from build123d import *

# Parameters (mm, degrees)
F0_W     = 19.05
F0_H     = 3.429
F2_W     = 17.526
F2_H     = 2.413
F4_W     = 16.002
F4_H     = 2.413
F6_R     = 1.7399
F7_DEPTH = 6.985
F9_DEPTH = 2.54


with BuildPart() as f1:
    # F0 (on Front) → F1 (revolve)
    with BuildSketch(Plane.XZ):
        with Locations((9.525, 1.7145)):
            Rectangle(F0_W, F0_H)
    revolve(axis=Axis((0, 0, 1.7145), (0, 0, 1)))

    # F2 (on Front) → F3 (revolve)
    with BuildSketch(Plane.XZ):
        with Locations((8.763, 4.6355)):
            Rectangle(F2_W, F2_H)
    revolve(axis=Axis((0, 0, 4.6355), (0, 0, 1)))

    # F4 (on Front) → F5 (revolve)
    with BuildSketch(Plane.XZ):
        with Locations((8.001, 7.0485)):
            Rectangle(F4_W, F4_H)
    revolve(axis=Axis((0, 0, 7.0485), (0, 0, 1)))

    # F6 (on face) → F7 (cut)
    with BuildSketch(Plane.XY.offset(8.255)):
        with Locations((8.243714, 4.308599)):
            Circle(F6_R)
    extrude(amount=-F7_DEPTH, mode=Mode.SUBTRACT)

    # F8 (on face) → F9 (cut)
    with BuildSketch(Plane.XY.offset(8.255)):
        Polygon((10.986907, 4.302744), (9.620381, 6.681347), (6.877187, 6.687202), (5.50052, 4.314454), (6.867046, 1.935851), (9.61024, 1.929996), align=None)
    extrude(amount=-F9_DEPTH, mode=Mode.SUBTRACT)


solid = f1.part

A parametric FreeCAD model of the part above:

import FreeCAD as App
import Part
import Sketcher
Q = App.Units.Quantity


def add_polygon(sketch, points):
    """Adds a closed chain of lines whose ends are joined by coincident constraints."""
    first, n = sketch.GeometryCount, len(points)
    for a, b in zip(points, points[1:] + points[:1]):
        sketch.addGeometry(Part.LineSegment(App.Vector(*a, 0), App.Vector(*b, 0)), False)
    for i in range(n):
        sketch.addConstraint(Sketcher.Constraint("Coincident", first + i, 2, first + (i + 1) % n, 1))

doc = App.newDocument("Part")
body = doc.addObject("PartDesign::Body", "Body")

sketch1 = body.newObject("Sketcher::SketchObject", "Sketch")
sketch1.AttachmentSupport = (doc.getObject("XZ_Plane"), [""])
sketch1.MapMode = "FlatFace"
add_polygon(sketch1, [(0, 3.4), (0, 0), (19.1, 0), (19.1, 3.4)])
sketch1.addConstraint(Sketcher.Constraint("Vertical", 0))
sketch1.addConstraint(Sketcher.Constraint("Horizontal", 1))
sketch1.addConstraint(Sketcher.Constraint("Vertical", 2))
sketch1.addConstraint(Sketcher.Constraint("Horizontal", 3))
sketch1.addConstraint(Sketcher.Constraint("Coincident", 0, 2, -1, 1))
sketch1.addConstraint(Sketcher.Constraint("DistanceX", 1, 1, 1, 2, Q("0.75 in")))
sketch1.addConstraint(Sketcher.Constraint("DistanceY", 0, 2, 0, 1, Q("0.135 in")))
revolution = body.newObject("PartDesign::Revolution", "Revolution")
revolution.Profile = sketch1
revolution.ReferenceAxis = (sketch1, ["V_Axis"])
revolution.Angle = 360

sketch2 = body.newObject("Sketcher::SketchObject", "Sketch001")
sketch2.AttachmentSupport = (doc.getObject("XZ_Plane"), [""])
sketch2.MapMode = "FlatFace"
add_polygon(sketch2, [(0, 5.8), (0, 3.4), (17.5, 3.4), (17.5, 5.8)])
sketch2.addConstraint(Sketcher.Constraint("Vertical", 0))
sketch2.addConstraint(Sketcher.Constraint("Horizontal", 1))
sketch2.addConstraint(Sketcher.Constraint("Vertical", 2))
sketch2.addConstraint(Sketcher.Constraint("Horizontal", 3))
sketch2.addConstraint(Sketcher.Constraint("PointOnObject", 0, 2, -2))
sketch2.addConstraint(Sketcher.Constraint("DistanceX", 1, 1, 1, 2, Q("0.69 in")))
sketch2.addConstraint(Sketcher.Constraint("DistanceY", 0, 2, 0, 1, Q("0.095 in")))
sketch2.addConstraint(Sketcher.Constraint("DistanceY", -1, 1, 2, 2, Q("0.23 in")))
revolution2 = body.newObject("PartDesign::Revolution", "Revolution001")
revolution2.Profile = sketch2
revolution2.ReferenceAxis = (sketch2, ["V_Axis"])
revolution2.Angle = 360

sketch3 = body.newObject("Sketcher::SketchObject", "Sketch002")
sketch3.AttachmentSupport = (doc.getObject("XZ_Plane"), [""])
sketch3.MapMode = "FlatFace"
add_polygon(sketch3, [(0, 8.3), (0, 5.8), (16, 5.8), (16, 8.3)])
sketch3.addConstraint(Sketcher.Constraint("Vertical", 0))
sketch3.addConstraint(Sketcher.Constraint("Horizontal", 1))
sketch3.addConstraint(Sketcher.Constraint("Vertical", 2))
sketch3.addConstraint(Sketcher.Constraint("Horizontal", 3))
sketch3.addConstraint(Sketcher.Constraint("PointOnObject", 0, 2, -2))
sketch3.addConstraint(Sketcher.Constraint("DistanceX", 1, 1, 1, 2, Q("0.63 in")))
sketch3.addConstraint(Sketcher.Constraint("DistanceY", 0, 2, 0, 1, Q("0.095 in")))
sketch3.addConstraint(Sketcher.Constraint("DistanceY", -1, 1, 0, 2, Q("0.23 in")))
revolution3 = body.newObject("PartDesign::Revolution", "Revolution002")
revolution3.Profile = sketch3
revolution3.ReferenceAxis = (sketch3, ["V_Axis"])
revolution3.Angle = 360

sketch4 = body.newObject("Sketcher::SketchObject", "Sketch003")
sketch4.AttachmentSupport = (doc.getObject("XY_Plane"), [""])
sketch4.MapMode = "FlatFace"
sketch4.AttachmentOffset = App.Placement(App.Vector(0, 0, 0.325 * 25.4), App.Rotation())
sketch4.addGeometry(Part.Circle(App.Vector(8.2, 4.3, 0), App.Vector(0, 0, 1), 1.7), False)
sketch4.addConstraint(Sketcher.Constraint("Diameter", 0, Q("0.137 in")))
sketch4.addConstraint(Sketcher.Constraint("DistanceY", -1, 1, 0, 3, 4.308599))
sketch4.addConstraint(Sketcher.Constraint("DistanceX", -1, 1, 0, 3, 8.243714))
pocket1 = body.newObject("PartDesign::Pocket", "Pocket")
pocket1.Profile = sketch4
pocket1.Length = Q("0.275 in")

sketch5 = body.newObject("Sketcher::SketchObject", "Sketch004")
sketch5.AttachmentSupport = (doc.getObject("XY_Plane"), [""])
sketch5.MapMode = "FlatFace"
sketch5.AttachmentOffset = App.Placement(App.Vector(0, 0, 0.325 * 25.4), App.Rotation())
add_polygon(sketch5, [(11, 4.3), (9.6, 6.7), (6.9, 6.7), (5.5, 4.3), (6.9, 1.9), (9.6, 1.9)])
sketch5.addConstraint(Sketcher.Constraint("Parallel", 0, 3))
sketch5.addConstraint(Sketcher.Constraint("Parallel", 1, 4))
sketch5.addConstraint(Sketcher.Constraint("Parallel", 2, 5))
sketch5.addConstraint(Sketcher.Constraint("Equal", 0, 1))
sketch5.addConstraint(Sketcher.Constraint("Equal", 1, 2))
sketch5.addConstraint(Sketcher.Constraint("Equal", 2, 3))
sketch5.addConstraint(Sketcher.Constraint("Distance", 0, Q("0.108 in")))
sketch5.addConstraint(Sketcher.Constraint("DistanceX", 2, 2, 4, 2, Q("0.1618 in")))
sketch5.addConstraint(Sketcher.Constraint("DistanceX", -1, 1, 0, 2, 9.620381))
sketch5.addConstraint(Sketcher.Constraint("DistanceX", -1, 1, 2, 2, 5.50052))
sketch5.addConstraint(Sketcher.Constraint("DistanceY", -1, 1, 3, 2, 1.935851))
sketch5.addConstraint(Sketcher.Constraint("DistanceY", 5, 2, 1, 2, 2.384458))
pocket2 = body.newObject("PartDesign::Pocket", "Pocket001")
pocket2.Profile = sketch5
pocket2.Length = Q("0.1 in")

doc.recompute()
